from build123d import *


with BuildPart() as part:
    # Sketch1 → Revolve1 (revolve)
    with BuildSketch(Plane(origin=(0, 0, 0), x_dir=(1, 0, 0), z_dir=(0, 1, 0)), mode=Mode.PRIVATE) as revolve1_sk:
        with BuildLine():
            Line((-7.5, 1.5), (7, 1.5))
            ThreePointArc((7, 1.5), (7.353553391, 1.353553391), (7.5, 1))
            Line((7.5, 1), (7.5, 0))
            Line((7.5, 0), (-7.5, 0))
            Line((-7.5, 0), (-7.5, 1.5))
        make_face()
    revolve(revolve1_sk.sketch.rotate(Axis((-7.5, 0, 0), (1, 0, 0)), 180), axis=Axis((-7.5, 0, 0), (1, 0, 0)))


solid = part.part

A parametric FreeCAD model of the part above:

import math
import FreeCAD as App
import Part
import Sketcher

V = App.Vector
Q = App.Units.Quantity

doc = App.newDocument("Part")
params = doc.addObject("Spreadsheet::Sheet", "Params")
for row, (alias, value) in enumerate([
    ("sketch1_radius", "0.5 mm"),
    ("sketch1_width", "15 mm"),
    ("sketch1_height", "1 mm"),
    ("revolution_angle", "360 deg"),
], start=1):
    params.set(f"A{row}", alias)
    params.set(f"B{row}", "=" + value)
    params.setAlias(f"B{row}", alias)

body = doc.addObject("PartDesign::Body", "Body")

# Sketch on XZ plane
sketch1 = body.newObject("Sketcher::SketchObject", "Sketch")
sketch1.AttachmentSupport = (doc.getObject("XZ_Plane"), [""])
sketch1.MapMode = "FlatFace"
sketch1.addGeometry([
    Part.LineSegment(V(7, -1.5, 0), V(-7.5, -1.5, 0)),  # 0
    Part.LineSegment(V(-7.5, -1.5, 0), V(-7.5, 0, 0)),  # 1
    Part.LineSegment(V(-7.5, 0, 0), V(7.5, 0, 0)),  # 2
    Part.LineSegment(V(7.5, 0, 0), V(7.5, -1, 0)),  # 3
    Part.ArcOfCircle(Part.Circle(V(7, -1, 0), V(0, 0, 1), 0.5), math.radians(-90), math.radians(0)),  # 4
], False)
sketch1.addConstraint([
    Sketcher.Constraint("Coincident", 0, 2, 1, 1),
    Sketcher.Constraint("Coincident", 1, 2, 2, 1),
    Sketcher.Constraint("Coincident", 2, 2, 3, 1),
    Sketcher.Constraint("Tangent", 3, 2, 4, 2),
    Sketcher.Constraint("Tangent", 4, 1, 0, 1),
    Sketcher.Constraint("Horizontal", 0),
    Sketcher.Constraint("Vertical", 1),
    Sketcher.Constraint("Horizontal", 2),
    Sketcher.Constraint("Vertical", 3),
    Sketcher.Constraint("Symmetric", 1, 2, 2, 2, -1, 1),
    Sketcher.Constraint("Radius", 4, Q("0.5 mm")),
    Sketcher.Constraint("DistanceX", 2, 1, 2, 2, Q("15 mm")),
    Sketcher.Constraint("DistanceY", 3, 2, 3, 1, Q("1 mm")),
])
sketch1.setExpression("Constraints[10]", "Params.sketch1_radius")
sketch1.setExpression("Constraints[11]", "Params.sketch1_width")
sketch1.setExpression("Constraints[12]", "Params.sketch1_height")
revolution = body.newObject("PartDesign::Revolution", "Revolution")
revolution.Profile = sketch1
revolution.ReferenceAxis = (sketch1, ["H_Axis"])
revolution.setExpression("Angle", "Params.revolution_angle")

doc.recompute()
